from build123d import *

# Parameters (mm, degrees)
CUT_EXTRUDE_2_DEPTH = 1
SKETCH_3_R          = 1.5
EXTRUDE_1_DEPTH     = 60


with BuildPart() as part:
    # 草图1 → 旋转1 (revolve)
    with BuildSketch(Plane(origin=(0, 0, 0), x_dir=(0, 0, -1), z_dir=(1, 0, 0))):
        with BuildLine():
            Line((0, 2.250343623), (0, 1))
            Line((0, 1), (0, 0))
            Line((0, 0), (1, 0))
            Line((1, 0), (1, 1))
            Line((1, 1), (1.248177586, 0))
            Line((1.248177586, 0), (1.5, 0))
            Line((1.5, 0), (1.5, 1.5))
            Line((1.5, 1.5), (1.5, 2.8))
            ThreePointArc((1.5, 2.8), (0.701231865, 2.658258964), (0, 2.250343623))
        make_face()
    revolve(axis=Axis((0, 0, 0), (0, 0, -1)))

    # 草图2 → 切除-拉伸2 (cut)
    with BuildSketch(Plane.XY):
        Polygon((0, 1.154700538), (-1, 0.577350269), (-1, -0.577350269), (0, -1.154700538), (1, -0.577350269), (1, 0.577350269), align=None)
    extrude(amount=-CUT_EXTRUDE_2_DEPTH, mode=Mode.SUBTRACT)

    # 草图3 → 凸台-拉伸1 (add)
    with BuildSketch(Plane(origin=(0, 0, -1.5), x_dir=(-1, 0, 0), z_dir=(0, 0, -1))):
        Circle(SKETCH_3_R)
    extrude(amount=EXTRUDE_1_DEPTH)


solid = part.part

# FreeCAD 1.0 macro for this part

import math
import FreeCAD as App
import Part
import Sketcher
from FreeCAD import Vector
Q = App.Units.Quantity

doc = App.newDocument("Part")
body = doc.addObject("PartDesign::Body", "Body")

# Sketch on YZ plane
sketch1 = body.newObject("Sketcher::SketchObject", "Sketch")
sketch1.AttachmentSupport = (doc.getObject("YZ_Plane"), [""])
sketch1.MapMode = "FlatFace"
sketch1.addGeometry([
    Part.LineSegment(Vector(2.25, 0, 0), Vector(0, 0, 0)),  # 0
    Part.LineSegment(Vector(0, 0, 0), Vector(0, -1, 0)),  # 1
    Part.LineSegment(Vector(0, -1, 0), Vector(1, -1, 0)),  # 2
    Part.LineSegment(Vector(1, -1, 0), Vector(0, -1.25, 0)),  # 3
    Part.LineSegment(Vector(0, -1.25, 0), Vector(0, -1.5, 0)),  # 4
    Part.LineSegment(Vector(0, -1.5, 0), Vector(2.8, -1.5, 0)),  # 5
    Part.ArcOfCircle(Part.Circle(Vector(0.48, -1.5, 0), Vector(0, 0, 1), 2.32), math.radians(0), math.radians(40)),  # 6
], False)
sketch1.addConstraint([
    Sketcher.Constraint("Coincident", 0, 2, 1, 1),
    Sketcher.Constraint("Coincident", 1, 2, 2, 1),
    Sketcher.Constraint("Coincident", 2, 2, 3, 1),
    Sketcher.Constraint("Coincident", 3, 2, 4, 1),
    Sketcher.Constraint("Coincident", 4, 2, 5, 1),
    Sketcher.Constraint("Coincident", 5, 2, 6, 1),
    Sketcher.Constraint("Coincident", 6, 2, 0, 1),
    Sketcher.Constraint("Horizontal", 0),
    Sketcher.Constraint("Vertical", 1),
    Sketcher.Constraint("Horizontal", 2),
    Sketcher.Constraint("Vertical", 4),
    Sketcher.Constraint("Horizontal", 5),
    Sketcher.Constraint("Coincident", 0, 2, -1, 1),
    Sketcher.Constraint("PointOnObject", 3, 2, -2),
    Sketcher.Constraint("Horizontal", 6, 3, 4, 2),
    Sketcher.Constraint("Equal", 2, 1),
    Sketcher.Constraint("DistanceX", 2, 1, 2, 2, 1.0),
    Sketcher.Constraint("DistanceX", 5, 1, 5, 2, 2.8),
    Sketcher.Constraint("DistanceY", 6, 3, -1, 1, 1.5),
    Sketcher.Constraint("Radius", 6, 2.321561),
    Sketcher.Constraint("DistanceY", 4, 2, 4, 1, 0.251822),
])
revolution = body.newObject("PartDesign::Revolution", "Revolution")
revolution.Profile = sketch1
revolution.ReferenceAxis = (sketch1, ["V_Axis"])
revolution.Angle = 360

# Sketch on XY plane
sketch2 = body.newObject("Sketcher::SketchObject", "Sketch001")
sketch2.AttachmentSupport = (doc.getObject("XY_Plane"), [""])
sketch2.MapMode = "FlatFace"
sketch2.addGeometry([
    Part.LineSegment(Vector(0, 1.2, 0), Vector(-1, 0.6, 0)),  # 0
    Part.LineSegment(Vector(-1, 0.6, 0), Vector(-1, -0.6, 0)),  # 1
    Part.LineSegment(Vector(-1, -0.6, 0), Vector(0, -1.2, 0)),  # 2
    Part.LineSegment(Vector(0, -1.2, 0), Vector(1, -0.6, 0)),  # 3
    Part.LineSegment(Vector(1, -0.6, 0), Vector(1, 0.6, 0)),  # 4
    Part.LineSegment(Vector(1, 0.6, 0), Vector(0, 1.2, 0)),  # 5
], False)
sketch2.addConstraint([
    Sketcher.Constraint("Coincident", 0, 2, 1, 1),
    Sketcher.Constraint("Coincident", 1, 2, 2, 1),
    Sketcher.Constraint("Coincident", 2, 2, 3, 1),
    Sketcher.Constraint("Coincident", 3, 2, 4, 1),
    Sketcher.Constraint("Coincident", 4, 2, 5, 1),
    Sketcher.Constraint("Coincident", 5, 2, 0, 1),
    Sketcher.Constraint("Vertical", 1),
    Sketcher.Constraint("Vertical", 4),
    Sketcher.Constraint("Symmetric", 0, 2, 3, 2, -1, 1),
    Sketcher.Constraint("Symmetric", 2, 2, 5, 2, -1, 1),
    Sketcher.Constraint("PointOnObject", 2, 2, -2),
    Sketcher.Constraint("Parallel", 2, 5),
    Sketcher.Constraint("Horizontal", 1, 2, 3, 2),
    Sketcher.Constraint("Angle", 0, Q("-150 deg")),
    Sketcher.Constraint("DistanceX", 0, 2, -1, 1, 1.0),
    Sketcher.Constraint("DistanceY", 1, 2, 1, 1, 1.154701),
])
pocket1 = body.newObject("PartDesign::Pocket", "Pocket")
pocket1.Profile = sketch2
pocket1.Length = 1

# Sketch on XY plane
sketch3 = body.newObject("Sketcher::SketchObject", "Sketch002")
sketch3.AttachmentSupport = (doc.getObject("XY_Plane"), [""])
sketch3.MapMode = "FlatFace"
sketch3.AttachmentOffset = App.Placement(Vector(0, 0, -1.5), App.Rotation())
sketch3.addGeometry(Part.Circle(Vector(0, 0, 0), Vector(0, 0, 1), 1.5), False)
sketch3.addConstraint([
    Sketcher.Constraint("Coincident", 0, 3, -1, 1),
    Sketcher.Constraint("Diameter", 0, 3.0),
])
pad1 = body.newObject("PartDesign::Pad", "Pad")
pad1.Profile = sketch3
pad1.Length = 60
pad1.Reversed = True

doc.recompute()
